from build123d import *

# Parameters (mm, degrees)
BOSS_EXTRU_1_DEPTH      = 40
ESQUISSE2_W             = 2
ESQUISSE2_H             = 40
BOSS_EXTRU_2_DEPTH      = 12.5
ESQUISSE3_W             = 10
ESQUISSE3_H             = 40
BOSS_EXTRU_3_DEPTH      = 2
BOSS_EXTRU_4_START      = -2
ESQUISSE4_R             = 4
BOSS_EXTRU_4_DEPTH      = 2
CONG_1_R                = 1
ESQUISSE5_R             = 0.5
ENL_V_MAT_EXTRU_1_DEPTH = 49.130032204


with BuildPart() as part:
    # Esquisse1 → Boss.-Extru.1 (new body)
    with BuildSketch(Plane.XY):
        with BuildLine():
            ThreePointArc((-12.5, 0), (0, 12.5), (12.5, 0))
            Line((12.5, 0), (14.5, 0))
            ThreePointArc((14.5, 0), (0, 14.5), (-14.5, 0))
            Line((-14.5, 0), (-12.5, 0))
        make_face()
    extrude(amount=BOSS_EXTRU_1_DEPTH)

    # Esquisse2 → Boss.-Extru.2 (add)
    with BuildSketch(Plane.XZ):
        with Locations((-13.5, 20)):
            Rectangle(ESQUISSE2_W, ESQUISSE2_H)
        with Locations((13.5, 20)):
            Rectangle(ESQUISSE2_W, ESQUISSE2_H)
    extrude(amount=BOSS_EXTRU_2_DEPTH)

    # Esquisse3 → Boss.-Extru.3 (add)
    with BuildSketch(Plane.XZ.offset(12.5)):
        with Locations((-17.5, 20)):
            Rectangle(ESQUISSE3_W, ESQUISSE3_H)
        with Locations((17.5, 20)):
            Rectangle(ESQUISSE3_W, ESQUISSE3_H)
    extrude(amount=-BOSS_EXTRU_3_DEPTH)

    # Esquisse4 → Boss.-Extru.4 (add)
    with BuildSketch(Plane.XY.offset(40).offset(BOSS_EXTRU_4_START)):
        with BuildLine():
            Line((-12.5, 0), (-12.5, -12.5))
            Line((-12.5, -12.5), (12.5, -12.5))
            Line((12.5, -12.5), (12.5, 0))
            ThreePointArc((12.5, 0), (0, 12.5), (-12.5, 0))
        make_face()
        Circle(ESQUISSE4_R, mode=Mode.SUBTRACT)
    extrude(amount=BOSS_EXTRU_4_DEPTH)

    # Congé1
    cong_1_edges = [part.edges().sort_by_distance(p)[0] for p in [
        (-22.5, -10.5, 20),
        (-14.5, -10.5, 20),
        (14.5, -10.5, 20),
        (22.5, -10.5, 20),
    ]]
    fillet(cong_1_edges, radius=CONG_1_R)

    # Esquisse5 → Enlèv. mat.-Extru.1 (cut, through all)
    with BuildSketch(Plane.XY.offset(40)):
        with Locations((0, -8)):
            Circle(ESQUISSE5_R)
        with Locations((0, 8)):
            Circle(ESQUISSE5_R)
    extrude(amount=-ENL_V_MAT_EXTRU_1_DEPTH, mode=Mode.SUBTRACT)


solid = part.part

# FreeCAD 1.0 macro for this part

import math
import FreeCAD as App
import Part
import Sketcher
from FreeCAD import Vector


def edges_at(feature, points):
    """Names of the edges that pass closest to the given points."""
    edges = feature.Shape.Edges
    near = lambda p: min(range(len(edges)), key=lambda i: edges[i].distToShape(Part.Vertex(*p))[0])
    return sorted({f"Edge{near(p) + 1}" for p in points})

doc = App.newDocument("Part")
body = doc.addObject("PartDesign::Body", "Body")

# Sketch on XY plane
sketch1 = doc.addObject("Sketcher::SketchObject", "Sketch")
body.addObject(sketch1)
sketch1.AttachmentSupport = (doc.XY_Plane, [""])
sketch1.MapMode = "FlatFace"
sketch1.addGeometry([
    Part.ArcOfCircle(Part.Circle(Vector(0, 0, 0), Vector(0, 0, 1), 12.5), math.radians(0), math.radians(180)),
    Part.LineSegment(Vector(12.5, 0, 0), Vector(14.5, 0, 0)),
    Part.ArcOfCircle(Part.Circle(Vector(0, 0, 0), Vector(0, 0, 1), 14.5), math.radians(0), math.radians(180)),
    Part.LineSegment(Vector(-14.5, 0, 0), Vector(-12.5, 0, 0)),
], False)
sketch1.addConstraint([
    Sketcher.Constraint("Coincident", 0, 1, 1, 1),
    Sketcher.Constraint("Coincident", 1, 2, 2, 1),
    Sketcher.Constraint("Coincident", 2, 2, 3, 1),
    Sketcher.Constraint("Coincident", 3, 2, 0, 2),
    Sketcher.Constraint("Horizontal", 1),
    Sketcher.Constraint("Horizontal", 3),
    Sketcher.Constraint("Coincident", 0, 3, -1, 1),
    Sketcher.Constraint("Coincident", 2, 3, -1, 1),
    Sketcher.Constraint("PointOnObject", 0, 1, -1),
    Sketcher.Constraint("PointOnObject", 2, 2, -1),
    Sketcher.Constraint("Radius", 0, 12.5),
    Sketcher.Constraint("Radius", 2, 14.5),
])
pad1 = doc.addObject("PartDesign::Pad", "Pad")
body.addObject(pad1)
pad1.Profile = sketch1
pad1.Length = 40

# Sketch on XZ plane
sketch2 = doc.addObject("Sketcher::SketchObject", "Sketch001")
body.addObject(sketch2)
sketch2.AttachmentSupport = (doc.XZ_Plane, [""])
sketch2.MapMode = "FlatFace"
sketch2.addGeometry([
    Part.LineSegment(Vector(-14.5, 40, 0), Vector(-14.5, 0, 0)),  # 0
    Part.LineSegment(Vector(-14.5, 0, 0), Vector(-12.5, 0, 0)),  # 1
    Part.LineSegment(Vector(-12.5, 0, 0), Vector(-12.5, 40, 0)),  # 2
    Part.LineSegment(Vector(-12.5, 40, 0), Vector(-14.5, 40, 0)),  # 3
    Part.LineSegment(Vector(12.5, 40, 0), Vector(12.5, 0, 0)),  # 4
    Part.LineSegment(Vector(12.5, 0, 0), Vector(14.5, 0, 0)),  # 5
    Part.LineSegment(Vector(14.5, 0, 0), Vector(14.5, 40, 0)),  # 6
    Part.LineSegment(Vector(14.5, 40, 0), Vector(12.5, 40, 0)),  # 7
], False)
sketch2.addConstraint([
    Sketcher.Constraint("Coincident", 0, 2, 1, 1),
    Sketcher.Constraint("Coincident", 1, 2, 2, 1),
    Sketcher.Constraint("Coincident", 2, 2, 3, 1),
    Sketcher.Constraint("Coincident", 3, 2, 0, 1),
    Sketcher.Constraint("Coincident", 4, 2, 5, 1),
    Sketcher.Constraint("Coincident", 5, 2, 6, 1),
    Sketcher.Constraint("Coincident", 6, 2, 7, 1),
    Sketcher.Constraint("Coincident", 7, 2, 4, 1),
    Sketcher.Constraint("Vertical", 0),
    Sketcher.Constraint("Horizontal", 1),
    Sketcher.Constraint("Vertical", 2),
    Sketcher.Constraint("Horizontal", 3),
    Sketcher.Constraint("Vertical", 4),
    Sketcher.Constraint("Horizontal", 5),
    Sketcher.Constraint("Vertical", 6),
    Sketcher.Constraint("Horizontal", 7),
    Sketcher.Constraint("Symmetric", 1, 2, 4, 2, -1, 1),
    Sketcher.Constraint("Symmetric", 0, 2, 5, 2, -2),
    Sketcher.Constraint("Horizontal", 3, 2, 6, 2),
    Sketcher.Constraint("DistanceX", 1, 1, 1, 2, 2.0),
    Sketcher.Constraint("DistanceY", 0, 2, 0, 1, 40.0),
    Sketcher.Constraint("DistanceX", 1, 2, 4, 2, 25.0),
])
pad2 = doc.addObject("PartDesign::Pad", "Pad001")
body.addObject(pad2)
pad2.Profile = sketch2
pad2.Length = 12.5

# Sketch on XZ plane
sketch3 = doc.addObject("Sketcher::SketchObject", "Sketch002")
body.addObject(sketch3)
sketch3.AttachmentSupport = (doc.XZ_Plane, [""])
sketch3.MapMode = "FlatFace"
sketch3.AttachmentOffset = App.Placement(Vector(0, 0, 12.5), App.Rotation())
sketch3.addGeometry([
    Part.LineSegment(Vector(-22.5, 40, 0), Vector(-22.5, 0, 0)),  # 0
    Part.LineSegment(Vector(-22.5, 0, 0), Vector(-12.5, 0, 0)),  # 1
    Part.LineSegment(Vector(-12.5, 0, 0), Vector(-12.5, 40, 0)),  # 2
    Part.LineSegment(Vector(-12.5, 40, 0), Vector(-22.5, 40, 0)),  # 3
    Part.LineSegment(Vector(12.5, 40, 0), Vector(12.5, 0, 0)),  # 4
    Part.LineSegment(Vector(12.5, 0, 0), Vector(22.5, 0, 0)),  # 5
    Part.LineSegment(Vector(22.5, 0, 0), Vector(22.5, 40, 0)),  # 6
    Part.LineSegment(Vector(22.5, 40, 0), Vector(12.5, 40, 0)),  # 7
], False)
sketch3.addConstraint([
    Sketcher.Constraint("Coincident", 0, 2, 1, 1),
    Sketcher.Constraint("Coincident", 1, 2, 2, 1),
    Sketcher.Constraint("Coincident", 2, 2, 3, 1),
    Sketcher.Constraint("Coincident", 3, 2, 0, 1),
    Sketcher.Constraint("Coincident", 4, 2, 5, 1),
    Sketcher.Constraint("Coincident", 5, 2, 6, 1),
    Sketcher.Constraint("Coincident", 6, 2, 7, 1),
    Sketcher.Constraint("Coincident", 7, 2, 4, 1),
    Sketcher.Constraint("Vertical", 0),
    Sketcher.Constraint("Horizontal", 1),
    Sketcher.Constraint("Vertical", 2),
    Sketcher.Constraint("Horizontal", 3),
    Sketcher.Constraint("Vertical", 4),
    Sketcher.Constraint("Horizontal", 5),
    Sketcher.Constraint("Vertical", 6),
    Sketcher.Constraint("Horizontal", 7),
    Sketcher.Constraint("Symmetric", 1, 2, 4, 2, -1, 1),
    Sketcher.Constraint("Symmetric", 0, 2, 5, 2, -2),
    Sketcher.Constraint("Horizontal", 3, 2, 6, 2),
    Sketcher.Constraint("DistanceX", 1, 1, 1, 2, 10.0),
    Sketcher.Constraint("DistanceY", 0, 2, 0, 1, 40.0),
    Sketcher.Constraint("DistanceX", 1, 2, 4, 2, 25.0),
])
pad3 = doc.addObject("PartDesign::Pad", "Pad002")
body.addObject(pad3)
pad3.Profile = sketch3
pad3.Length = 2
pad3.Reversed = True

# Sketch on XY plane
sketch4 = doc.addObject("Sketcher::SketchObject", "Sketch003")
body.addObject(sketch4)
sketch4.AttachmentSupport = (doc.XY_Plane, [""])
sketch4.MapMode = "FlatFace"
sketch4.AttachmentOffset = App.Placement(Vector(0, 0, 38), App.Rotation())
sketch4.addGeometry([
    Part.LineSegment(Vector(-12.5, 0, 0), Vector(-12.5, -12.5, 0)),  # 0
    Part.LineSegment(Vector(-12.5, -12.5, 0), Vector(12.5, -12.5, 0)),  # 1
    Part.LineSegment(Vector(12.5, -12.5, 0), Vector(12.5, 0, 0)),  # 2
    Part.ArcOfCircle(Part.Circle(Vector(0, 0, 0), Vector(0, 0, 1), 12.5), math.radians(0), math.radians(180)),  # 3
    Part.Circle(Vector(0, 0, 0), Vector(0, 0, 1), 4),  # 4
], False)
sketch4.addConstraint([
    Sketcher.Constraint("Coincident", 0, 2, 1, 1),
    Sketcher.Constraint("Coincident", 1, 2, 2, 1),
    Sketcher.Constraint("Tangent", 2, 2, 3, 1),
    Sketcher.Constraint("Tangent", 3, 2, 0, 1),
    Sketcher.Constraint("Vertical", 0),
    Sketcher.Constraint("Horizontal", 1),
    Sketcher.Constraint("Vertical", 2),
    Sketcher.Constraint("Coincident", 3, 3, -1, 1),
    Sketcher.Constraint("Coincident", 4, 3, -1, 1),
    Sketcher.Constraint("Diameter", 4, 8.0),
    Sketcher.Constraint("Radius", 3, 12.5),
    Sketcher.Constraint("DistanceY", 0, 2, 0, 1, 12.5),
])
pad4 = doc.addObject("PartDesign::Pad", "Pad003")
body.addObject(pad4)
pad4.Profile = sketch4
pad4.Length = 2
doc.recompute()

fillet = doc.addObject("PartDesign::Fillet", "Fillet")
body.addObject(fillet)
fillet.Base = (pad4, edges_at(pad4, [
    (-22.5, -10.5, 20),
    (-14.5, -10.5, 20),
    (14.5, -10.5, 20),
    (22.5, -10.5, 20),
]))
fillet.Radius = 1

# Sketch on XY plane
sketch5 = doc.addObject("Sketcher::SketchObject", "Sketch004")
body.addObject(sketch5)
sketch5.AttachmentSupport = (doc.XY_Plane, [""])
sketch5.MapMode = "FlatFace"
sketch5.AttachmentOffset = App.Placement(Vector(0, 0, 40), App.Rotation())
sketch5.addGeometry([
    Part.Circle(Vector(0, -8, 0), Vector(0, 0, 1), 0.5),
    Part.Circle(Vector(0, 8, 0), Vector(0, 0, 1), 0.5),
], False)
sketch5.addConstraint([
    Sketcher.Constraint("Equal", 0, 1),
    Sketcher.Constraint("Symmetric", 0, 3, 1, 3, -1, 1),
    Sketcher.Constraint("PointOnObject", 0, 3, -2),
    Sketcher.Constraint("Diameter", 0, 1.0),
    Sketcher.Constraint("DistanceY", 0, 3, -1, 1, 8.0),
])
pocket1 = doc.addObject("PartDesign::Pocket", "Pocket")
body.addObject(pocket1)
pocket1.Profile = sketch5
pocket1.Type = "ThroughAll"

doc.recompute()
